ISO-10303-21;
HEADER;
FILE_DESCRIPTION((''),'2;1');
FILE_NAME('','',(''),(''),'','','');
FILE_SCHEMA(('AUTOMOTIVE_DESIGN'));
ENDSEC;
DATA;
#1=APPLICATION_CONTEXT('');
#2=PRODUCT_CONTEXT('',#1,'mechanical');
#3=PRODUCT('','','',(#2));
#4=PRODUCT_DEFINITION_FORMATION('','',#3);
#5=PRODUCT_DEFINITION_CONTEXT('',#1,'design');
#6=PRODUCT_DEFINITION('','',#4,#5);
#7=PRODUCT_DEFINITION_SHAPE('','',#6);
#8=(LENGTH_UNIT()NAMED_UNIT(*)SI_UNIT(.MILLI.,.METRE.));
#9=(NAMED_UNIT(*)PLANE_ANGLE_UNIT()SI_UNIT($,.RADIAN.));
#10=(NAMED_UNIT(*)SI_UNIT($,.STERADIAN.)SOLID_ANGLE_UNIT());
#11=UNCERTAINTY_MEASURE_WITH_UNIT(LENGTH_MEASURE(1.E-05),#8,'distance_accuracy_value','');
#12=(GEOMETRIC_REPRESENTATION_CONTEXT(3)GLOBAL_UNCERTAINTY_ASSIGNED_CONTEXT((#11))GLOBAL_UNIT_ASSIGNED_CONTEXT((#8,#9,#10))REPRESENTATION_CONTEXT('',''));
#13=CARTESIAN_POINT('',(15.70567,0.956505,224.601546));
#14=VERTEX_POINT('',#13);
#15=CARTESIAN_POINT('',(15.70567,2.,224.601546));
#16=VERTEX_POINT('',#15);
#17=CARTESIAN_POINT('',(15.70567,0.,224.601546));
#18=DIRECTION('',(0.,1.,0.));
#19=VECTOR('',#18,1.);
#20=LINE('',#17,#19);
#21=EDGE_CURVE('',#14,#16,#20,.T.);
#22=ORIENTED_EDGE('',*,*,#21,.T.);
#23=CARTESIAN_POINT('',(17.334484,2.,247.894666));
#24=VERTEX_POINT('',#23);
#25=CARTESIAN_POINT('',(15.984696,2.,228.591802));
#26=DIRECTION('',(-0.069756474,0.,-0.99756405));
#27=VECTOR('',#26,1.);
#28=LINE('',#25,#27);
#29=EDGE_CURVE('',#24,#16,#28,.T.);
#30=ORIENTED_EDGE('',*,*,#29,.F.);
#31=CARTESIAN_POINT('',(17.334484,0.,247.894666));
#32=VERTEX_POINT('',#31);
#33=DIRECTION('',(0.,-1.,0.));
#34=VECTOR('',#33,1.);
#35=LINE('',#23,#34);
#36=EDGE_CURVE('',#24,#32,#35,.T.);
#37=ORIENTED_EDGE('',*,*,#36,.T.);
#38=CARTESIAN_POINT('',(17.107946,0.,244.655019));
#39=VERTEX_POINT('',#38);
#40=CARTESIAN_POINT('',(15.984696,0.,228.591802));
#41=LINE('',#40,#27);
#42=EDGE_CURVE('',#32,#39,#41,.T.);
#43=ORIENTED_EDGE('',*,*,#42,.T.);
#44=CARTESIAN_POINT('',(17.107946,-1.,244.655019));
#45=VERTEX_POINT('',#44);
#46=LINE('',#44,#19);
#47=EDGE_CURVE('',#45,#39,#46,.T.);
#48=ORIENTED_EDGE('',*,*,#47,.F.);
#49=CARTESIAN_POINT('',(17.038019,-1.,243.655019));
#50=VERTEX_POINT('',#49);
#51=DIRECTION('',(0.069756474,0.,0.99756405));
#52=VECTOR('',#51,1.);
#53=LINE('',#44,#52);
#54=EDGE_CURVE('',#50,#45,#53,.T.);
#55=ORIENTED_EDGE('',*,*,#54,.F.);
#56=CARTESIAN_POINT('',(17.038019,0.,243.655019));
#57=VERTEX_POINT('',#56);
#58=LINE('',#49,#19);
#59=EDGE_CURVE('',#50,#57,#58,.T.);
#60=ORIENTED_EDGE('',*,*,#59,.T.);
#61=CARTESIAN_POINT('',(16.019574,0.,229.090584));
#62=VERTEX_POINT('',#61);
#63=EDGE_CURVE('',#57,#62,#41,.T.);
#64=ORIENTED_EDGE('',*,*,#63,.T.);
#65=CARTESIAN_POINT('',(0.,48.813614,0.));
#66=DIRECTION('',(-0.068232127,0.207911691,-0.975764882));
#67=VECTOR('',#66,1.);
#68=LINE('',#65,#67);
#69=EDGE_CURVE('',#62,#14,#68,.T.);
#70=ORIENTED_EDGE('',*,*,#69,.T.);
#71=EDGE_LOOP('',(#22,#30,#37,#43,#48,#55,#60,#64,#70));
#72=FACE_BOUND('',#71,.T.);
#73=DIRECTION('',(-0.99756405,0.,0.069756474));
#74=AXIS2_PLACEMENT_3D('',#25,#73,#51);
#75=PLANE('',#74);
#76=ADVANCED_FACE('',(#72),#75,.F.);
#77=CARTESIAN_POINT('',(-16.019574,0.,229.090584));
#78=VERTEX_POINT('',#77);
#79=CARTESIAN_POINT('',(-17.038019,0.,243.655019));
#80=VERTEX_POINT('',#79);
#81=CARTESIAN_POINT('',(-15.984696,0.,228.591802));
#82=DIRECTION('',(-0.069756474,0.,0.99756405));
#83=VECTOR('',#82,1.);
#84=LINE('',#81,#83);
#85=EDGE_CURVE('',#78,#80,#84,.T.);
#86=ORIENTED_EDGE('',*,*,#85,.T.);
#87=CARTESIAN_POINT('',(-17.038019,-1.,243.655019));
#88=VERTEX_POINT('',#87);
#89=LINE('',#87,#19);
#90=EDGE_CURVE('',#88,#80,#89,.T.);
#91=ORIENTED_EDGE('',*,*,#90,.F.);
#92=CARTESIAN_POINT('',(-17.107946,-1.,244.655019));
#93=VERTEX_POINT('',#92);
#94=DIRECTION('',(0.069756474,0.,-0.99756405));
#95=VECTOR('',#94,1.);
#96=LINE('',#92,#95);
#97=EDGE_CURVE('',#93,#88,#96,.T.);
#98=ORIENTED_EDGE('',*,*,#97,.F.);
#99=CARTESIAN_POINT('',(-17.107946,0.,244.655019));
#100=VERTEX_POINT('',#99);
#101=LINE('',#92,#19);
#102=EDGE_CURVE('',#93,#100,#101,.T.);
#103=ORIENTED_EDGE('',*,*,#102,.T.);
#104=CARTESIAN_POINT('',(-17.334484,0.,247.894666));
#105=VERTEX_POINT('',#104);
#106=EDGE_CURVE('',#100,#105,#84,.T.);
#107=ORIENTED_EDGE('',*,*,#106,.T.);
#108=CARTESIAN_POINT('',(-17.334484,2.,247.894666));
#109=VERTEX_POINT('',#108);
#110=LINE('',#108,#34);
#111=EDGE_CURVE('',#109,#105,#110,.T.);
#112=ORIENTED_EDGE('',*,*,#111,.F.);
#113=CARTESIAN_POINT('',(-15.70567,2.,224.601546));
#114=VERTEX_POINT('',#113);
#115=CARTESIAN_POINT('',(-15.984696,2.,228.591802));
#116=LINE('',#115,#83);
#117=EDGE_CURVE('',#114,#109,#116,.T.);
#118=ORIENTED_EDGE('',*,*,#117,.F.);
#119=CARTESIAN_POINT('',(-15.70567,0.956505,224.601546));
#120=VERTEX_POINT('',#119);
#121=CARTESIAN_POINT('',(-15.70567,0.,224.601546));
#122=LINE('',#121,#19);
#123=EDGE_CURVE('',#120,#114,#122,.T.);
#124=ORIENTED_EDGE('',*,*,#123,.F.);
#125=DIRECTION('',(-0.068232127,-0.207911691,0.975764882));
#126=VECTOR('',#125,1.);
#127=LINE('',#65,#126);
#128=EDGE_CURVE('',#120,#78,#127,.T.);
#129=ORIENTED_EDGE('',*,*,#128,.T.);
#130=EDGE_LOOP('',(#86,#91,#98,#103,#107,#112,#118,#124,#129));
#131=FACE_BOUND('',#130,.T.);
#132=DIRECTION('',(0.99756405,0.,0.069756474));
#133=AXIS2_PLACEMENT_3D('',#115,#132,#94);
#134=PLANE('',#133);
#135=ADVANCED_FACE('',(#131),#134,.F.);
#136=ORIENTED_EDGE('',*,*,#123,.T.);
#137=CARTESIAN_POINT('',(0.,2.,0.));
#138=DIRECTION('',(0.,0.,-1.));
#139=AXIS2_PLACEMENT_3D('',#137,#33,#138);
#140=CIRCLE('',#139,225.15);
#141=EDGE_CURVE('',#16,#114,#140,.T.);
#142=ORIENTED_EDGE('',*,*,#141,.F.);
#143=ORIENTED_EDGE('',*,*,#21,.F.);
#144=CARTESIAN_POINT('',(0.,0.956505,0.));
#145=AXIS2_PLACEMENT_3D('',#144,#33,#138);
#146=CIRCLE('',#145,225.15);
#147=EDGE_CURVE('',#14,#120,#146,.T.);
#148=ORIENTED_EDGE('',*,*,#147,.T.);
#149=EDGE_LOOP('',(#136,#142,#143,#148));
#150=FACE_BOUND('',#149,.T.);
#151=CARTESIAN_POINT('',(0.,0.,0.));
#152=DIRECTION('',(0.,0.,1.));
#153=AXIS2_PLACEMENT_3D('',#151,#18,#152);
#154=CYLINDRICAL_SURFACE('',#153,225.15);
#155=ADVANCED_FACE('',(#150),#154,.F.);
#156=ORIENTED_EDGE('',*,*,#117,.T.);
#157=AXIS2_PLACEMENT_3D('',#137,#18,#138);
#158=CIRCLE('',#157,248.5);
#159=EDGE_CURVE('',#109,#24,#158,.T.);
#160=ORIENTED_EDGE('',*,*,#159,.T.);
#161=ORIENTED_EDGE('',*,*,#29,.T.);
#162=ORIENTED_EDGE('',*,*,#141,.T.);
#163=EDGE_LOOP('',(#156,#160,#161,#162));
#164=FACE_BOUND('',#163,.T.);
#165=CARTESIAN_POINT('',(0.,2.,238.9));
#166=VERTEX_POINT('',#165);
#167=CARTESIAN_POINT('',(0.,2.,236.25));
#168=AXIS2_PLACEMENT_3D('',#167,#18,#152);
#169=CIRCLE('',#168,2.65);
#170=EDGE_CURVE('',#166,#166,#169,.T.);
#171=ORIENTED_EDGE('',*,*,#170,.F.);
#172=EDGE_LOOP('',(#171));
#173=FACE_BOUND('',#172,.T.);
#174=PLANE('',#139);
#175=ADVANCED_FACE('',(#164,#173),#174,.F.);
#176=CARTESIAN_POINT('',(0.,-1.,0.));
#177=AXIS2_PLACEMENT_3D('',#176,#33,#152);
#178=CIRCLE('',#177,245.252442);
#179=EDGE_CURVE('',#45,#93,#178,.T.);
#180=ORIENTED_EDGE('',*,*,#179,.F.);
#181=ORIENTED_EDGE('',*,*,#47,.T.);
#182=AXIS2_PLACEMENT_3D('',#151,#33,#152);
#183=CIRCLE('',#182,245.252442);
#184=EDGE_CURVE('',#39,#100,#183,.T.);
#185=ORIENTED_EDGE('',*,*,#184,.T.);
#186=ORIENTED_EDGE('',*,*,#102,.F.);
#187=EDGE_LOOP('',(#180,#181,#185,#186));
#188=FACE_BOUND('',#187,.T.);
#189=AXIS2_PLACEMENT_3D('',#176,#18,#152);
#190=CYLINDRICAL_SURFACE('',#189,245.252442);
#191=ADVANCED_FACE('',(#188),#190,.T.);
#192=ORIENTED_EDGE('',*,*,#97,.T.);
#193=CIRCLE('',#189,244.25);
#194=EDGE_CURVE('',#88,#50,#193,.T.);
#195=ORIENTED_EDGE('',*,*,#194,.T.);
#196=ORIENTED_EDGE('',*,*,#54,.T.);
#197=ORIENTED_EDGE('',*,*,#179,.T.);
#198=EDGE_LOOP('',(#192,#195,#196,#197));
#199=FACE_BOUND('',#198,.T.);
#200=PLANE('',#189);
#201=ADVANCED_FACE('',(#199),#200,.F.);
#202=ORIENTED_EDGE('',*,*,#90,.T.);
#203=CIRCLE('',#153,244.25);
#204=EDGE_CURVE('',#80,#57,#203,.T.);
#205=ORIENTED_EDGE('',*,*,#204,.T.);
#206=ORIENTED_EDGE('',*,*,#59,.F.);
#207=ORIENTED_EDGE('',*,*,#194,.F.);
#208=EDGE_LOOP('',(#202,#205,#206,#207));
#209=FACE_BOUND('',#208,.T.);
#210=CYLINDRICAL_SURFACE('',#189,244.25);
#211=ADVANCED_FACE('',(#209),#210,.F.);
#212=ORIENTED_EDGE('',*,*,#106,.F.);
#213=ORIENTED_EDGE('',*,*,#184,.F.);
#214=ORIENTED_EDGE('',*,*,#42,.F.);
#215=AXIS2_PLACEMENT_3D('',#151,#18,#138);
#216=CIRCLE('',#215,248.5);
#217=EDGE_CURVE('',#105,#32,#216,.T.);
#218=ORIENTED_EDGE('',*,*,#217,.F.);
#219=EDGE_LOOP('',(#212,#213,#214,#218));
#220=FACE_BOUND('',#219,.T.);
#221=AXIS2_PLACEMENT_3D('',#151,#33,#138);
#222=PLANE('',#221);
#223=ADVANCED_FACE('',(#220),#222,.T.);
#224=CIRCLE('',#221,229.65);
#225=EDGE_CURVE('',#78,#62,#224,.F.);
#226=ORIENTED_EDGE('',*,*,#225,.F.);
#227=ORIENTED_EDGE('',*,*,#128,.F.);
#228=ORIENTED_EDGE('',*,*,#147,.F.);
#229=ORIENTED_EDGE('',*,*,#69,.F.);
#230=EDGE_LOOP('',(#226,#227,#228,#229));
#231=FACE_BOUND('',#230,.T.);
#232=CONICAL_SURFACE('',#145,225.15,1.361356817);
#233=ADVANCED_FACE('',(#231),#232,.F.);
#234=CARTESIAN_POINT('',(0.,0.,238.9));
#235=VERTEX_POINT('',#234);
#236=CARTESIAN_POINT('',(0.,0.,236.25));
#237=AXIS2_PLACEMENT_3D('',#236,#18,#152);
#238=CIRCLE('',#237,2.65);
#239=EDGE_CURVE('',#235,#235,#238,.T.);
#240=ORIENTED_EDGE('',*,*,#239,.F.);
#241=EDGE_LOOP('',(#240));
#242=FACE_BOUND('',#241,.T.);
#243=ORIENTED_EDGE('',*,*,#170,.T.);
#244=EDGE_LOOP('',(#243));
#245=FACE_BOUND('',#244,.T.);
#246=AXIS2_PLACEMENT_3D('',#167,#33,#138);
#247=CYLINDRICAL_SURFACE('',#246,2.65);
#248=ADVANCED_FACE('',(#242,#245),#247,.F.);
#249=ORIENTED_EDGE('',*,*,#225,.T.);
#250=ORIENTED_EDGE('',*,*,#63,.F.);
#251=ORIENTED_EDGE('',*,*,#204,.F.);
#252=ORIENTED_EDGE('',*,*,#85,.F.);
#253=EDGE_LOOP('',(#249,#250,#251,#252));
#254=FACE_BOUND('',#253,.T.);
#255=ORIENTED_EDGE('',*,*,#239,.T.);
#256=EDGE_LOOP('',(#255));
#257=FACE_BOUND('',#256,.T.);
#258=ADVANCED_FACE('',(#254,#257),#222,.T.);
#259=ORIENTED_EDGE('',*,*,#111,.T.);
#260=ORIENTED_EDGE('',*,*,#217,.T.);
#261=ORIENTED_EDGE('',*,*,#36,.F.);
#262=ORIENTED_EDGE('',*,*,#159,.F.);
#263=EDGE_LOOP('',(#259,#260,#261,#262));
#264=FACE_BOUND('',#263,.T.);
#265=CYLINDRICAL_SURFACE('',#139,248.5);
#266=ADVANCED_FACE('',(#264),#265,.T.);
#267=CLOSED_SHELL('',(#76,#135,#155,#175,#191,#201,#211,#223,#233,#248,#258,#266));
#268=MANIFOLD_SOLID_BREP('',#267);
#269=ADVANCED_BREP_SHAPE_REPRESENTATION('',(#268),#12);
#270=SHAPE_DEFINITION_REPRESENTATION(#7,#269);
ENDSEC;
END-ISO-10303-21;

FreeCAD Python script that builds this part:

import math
import FreeCAD as App
import Part
import Sketcher
from FreeCAD import Vector
Q = App.Units.Quantity


def edges_at(feature, points):
    """Names of the edges that pass closest to the given points."""
    edges = feature.Shape.Edges
    near = lambda p: min(range(len(edges)), key=lambda i: edges[i].distToShape(Part.Vertex(*p))[0])
    return sorted({f"Edge{near(p) + 1}" for p in points})

doc = App.newDocument("Part")
body = doc.addObject("PartDesign::Body", "Body")

# Sketch on XZ plane
sketch1 = body.newObject("Sketcher::SketchObject", "Sketch")
sketch1.AttachmentSupport = (doc.getObject("XZ_Plane"), [""])
sketch1.MapMode = "FlatFace"
sketch1.addGeometry([
    Part.LineSegment(Vector(-15.984696, 228.591802, 0), Vector(-17.334484, 247.894666, 0)),  # 0
    Part.ArcOfCircle(Part.Circle(Vector(0, 0, 0), Vector(0, 0, 1), 248.5), math.radians(86), math.radians(94)),  # 1
    Part.LineSegment(Vector(17.334484, 247.894666, 0), Vector(15.984696, 228.591802, 0)),  # 2
    Part.ArcOfCircle(Part.Circle(Vector(0, 0, 0), Vector(0, 0, 1), 229.15), math.radians(86), math.radians(94)),  # 3
    Part.Circle(Vector(0, 236.25, 0), Vector(0, 0, 1), 2.65),  # 4
], False)
sketch1.addConstraint([
    Sketcher.Constraint("Coincident", 0, 2, 1, 2),
    Sketcher.Constraint("Coincident", 1, 1, 2, 1),
    Sketcher.Constraint("Coincident", 2, 2, 3, 1),
    Sketcher.Constraint("Coincident", 3, 2, 0, 1),
    Sketcher.Constraint("Coincident", 1, 3, -1, 1),
    Sketcher.Constraint("Coincident", 3, 3, -1, 1),
    Sketcher.Constraint("PointOnObject", 4, 3, -2),
    Sketcher.Constraint("Horizontal", 0, 2, 1, 1),
    Sketcher.Constraint("Horizontal", 2, 2, 3, 2),
    Sketcher.Constraint("Diameter", 4, 5.3),
    Sketcher.Constraint("Radius", 1, 248.5),
    Sketcher.Constraint("Angle", 0, Q("94 deg")),
    Sketcher.Constraint("Radius", 3, 229.15),
    Sketcher.Constraint("DistanceY", -1, 1, 4, 3, 236.25),
    Sketcher.Constraint("DistanceX", 0, 2, 2, 2, 33.31918),
])
pad1 = body.newObject("PartDesign::Pad", "Pad")
pad1.Profile = sketch1
pad1.Length = 2
pad1.Reversed = True

# Sketch on XZ plane
sketch2 = body.newObject("Sketcher::SketchObject", "Sketch001")
sketch2.AttachmentSupport = (doc.getObject("XZ_Plane"), [""])
sketch2.MapMode = "FlatFace"
sketch2.addGeometry([
    Part.LineSegment(Vector(-15.70567, 224.601546, 0), Vector(-15.984696, 228.591802, 0)),
    Part.ArcOfCircle(Part.Circle(Vector(0, 0, 0), Vector(0, 0, 1), 229.15), math.radians(86), math.radians(94)),
    Part.LineSegment(Vector(15.984696, 228.591802, 0), Vector(15.70567, 224.601546, 0)),
    Part.ArcOfCircle(Part.Circle(Vector(0, 0, 0), Vector(0, 0, 1), 225.15), math.radians(86), math.radians(94)),
], False)
sketch2.addConstraint([
    Sketcher.Constraint("Coincident", 0, 2, 1, 2),
    Sketcher.Constraint("Coincident", 1, 1, 2, 1),
    Sketcher.Constraint("Coincident", 2, 2, 3, 1),
    Sketcher.Constraint("Coincident", 3, 2, 0, 1),
    Sketcher.Constraint("Coincident", 1, 3, -1, 1),
    Sketcher.Constraint("Coincident", 3, 3, -1, 1),
    Sketcher.Constraint("Horizontal", 0, 2, 1, 1),
    Sketcher.Constraint("Horizontal", 2, 2, 3, 2),
    Sketcher.Constraint("Angle", 0, Q("94 deg")),
    Sketcher.Constraint("Radius", 1, 229.15),
    Sketcher.Constraint("Radius", 3, 225.15),
    Sketcher.Constraint("DistanceX", -1, 1, 2, 2, 15.70567),
])
pad2 = body.newObject("PartDesign::Pad", "Pad001")
pad2.Profile = sketch2
pad2.Length = 2
pad2.Reversed = True
doc.recompute()

chamfer = body.newObject("PartDesign::Chamfer", "Chamfer")
chamfer.Base = (pad2, edges_at(pad2, [(0, 0, 225.15)]))
chamfer.ChamferType = "Two distances"
chamfer.Size = 4.5
chamfer.Size2 = 0.956505
chamfer.FlipDirection = True

# Sketch on XZ plane
sketch3 = body.newObject("Sketcher::SketchObject", "Sketch002")
sketch3.AttachmentSupport = (doc.getObject("XZ_Plane"), [""])
sketch3.MapMode = "FlatFace"
sketch3.addGeometry([
    Part.LineSegment(Vector(-17.107946, 244.655019, 0), Vector(-17.038019, 243.655019, 0)),
    Part.ArcOfCircle(Part.Circle(Vector(0, 0, 0), Vector(0, 0, 1), 244.25), math.radians(86), math.radians(94)),
    Part.LineSegment(Vector(17.038019, 243.655019, 0), Vector(17.107946, 244.655019, 0)),
    Part.ArcOfCircle(Part.Circle(Vector(0, 0, 0), Vector(0, 0, 1), 245.252442), math.radians(86), math.radians(94)),
], False)
sketch3.addConstraint([
    Sketcher.Constraint("Coincident", 0, 2, 1, 2),
    Sketcher.Constraint("Coincident", 1, 1, 2, 1),
    Sketcher.Constraint("Coincident", 2, 2, 3, 1),
    Sketcher.Constraint("Coincident", 3, 2, 0, 1),
    Sketcher.Constraint("Coincident", 1, 3, -1, 1),
    Sketcher.Constraint("Coincident", 3, 3, -1, 1),
    Sketcher.Constraint("Horizontal", 0, 2, 1, 1),
    Sketcher.Constraint("Horizontal", 2, 2, 3, 2),
    Sketcher.Constraint("Angle", 0, Q("-86 deg")),
    Sketcher.Constraint("Radius", 1, 244.25),
    Sketcher.Constraint("DistanceY", 1, 1, 2, 2, 1.0),
    Sketcher.Constraint("DistanceX", 0, 2, -1, 1, 17.038019),
])
pad3 = body.newObject("PartDesign::Pad", "Pad002")
pad3.Profile = sketch3
pad3.Length = 1

doc.recompute()
